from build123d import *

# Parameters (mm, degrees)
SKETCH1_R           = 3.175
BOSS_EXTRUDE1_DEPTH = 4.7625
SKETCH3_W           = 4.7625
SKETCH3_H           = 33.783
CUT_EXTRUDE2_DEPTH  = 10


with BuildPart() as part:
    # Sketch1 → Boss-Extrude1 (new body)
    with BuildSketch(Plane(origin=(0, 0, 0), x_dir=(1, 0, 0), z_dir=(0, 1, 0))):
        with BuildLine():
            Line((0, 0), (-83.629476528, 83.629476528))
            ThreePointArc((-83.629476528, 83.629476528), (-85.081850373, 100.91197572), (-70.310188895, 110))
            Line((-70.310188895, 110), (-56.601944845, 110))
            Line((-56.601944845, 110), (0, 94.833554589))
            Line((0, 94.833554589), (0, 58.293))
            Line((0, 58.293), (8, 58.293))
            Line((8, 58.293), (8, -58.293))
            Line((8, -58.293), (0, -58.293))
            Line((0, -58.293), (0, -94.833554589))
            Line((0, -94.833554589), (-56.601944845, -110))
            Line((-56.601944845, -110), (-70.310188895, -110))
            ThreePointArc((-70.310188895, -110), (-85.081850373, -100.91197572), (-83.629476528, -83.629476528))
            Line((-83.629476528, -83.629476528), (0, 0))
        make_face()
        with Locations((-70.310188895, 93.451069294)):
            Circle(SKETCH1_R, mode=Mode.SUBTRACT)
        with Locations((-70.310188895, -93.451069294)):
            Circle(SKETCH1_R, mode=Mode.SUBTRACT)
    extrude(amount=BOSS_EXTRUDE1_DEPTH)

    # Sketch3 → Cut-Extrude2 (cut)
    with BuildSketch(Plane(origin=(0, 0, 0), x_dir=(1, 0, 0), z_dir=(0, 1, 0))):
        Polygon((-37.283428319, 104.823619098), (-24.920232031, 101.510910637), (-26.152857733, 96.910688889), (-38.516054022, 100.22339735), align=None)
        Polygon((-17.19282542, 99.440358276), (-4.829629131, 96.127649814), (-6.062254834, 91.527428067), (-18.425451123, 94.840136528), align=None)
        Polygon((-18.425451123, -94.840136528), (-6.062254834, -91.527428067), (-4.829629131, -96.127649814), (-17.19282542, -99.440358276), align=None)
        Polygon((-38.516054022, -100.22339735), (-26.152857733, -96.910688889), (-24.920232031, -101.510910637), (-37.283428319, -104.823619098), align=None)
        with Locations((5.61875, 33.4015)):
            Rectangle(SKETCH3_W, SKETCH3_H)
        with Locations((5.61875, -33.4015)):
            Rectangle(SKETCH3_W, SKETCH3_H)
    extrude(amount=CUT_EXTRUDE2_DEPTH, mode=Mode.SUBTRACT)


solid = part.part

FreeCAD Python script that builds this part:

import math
import FreeCAD as App
import Part
import Sketcher

V = App.Vector
Q = App.Units.Quantity


def add_polygon(sketch, points):
    """Adds a closed chain of lines whose ends are joined by coincident constraints."""
    first, n = sketch.GeometryCount, len(points)
    for a, b in zip(points, points[1:] + points[:1]):
        sketch.addGeometry(Part.LineSegment(App.Vector(*a, 0), App.Vector(*b, 0)), False)
    for i in range(n):
        sketch.addConstraint(Sketcher.Constraint("Coincident", first + i, 2, first + (i + 1) % n, 1))

doc = App.newDocument("Part")
body = doc.addObject("PartDesign::Body", "Body")

# Sketch on XZ plane
sketch1 = body.newObject("Sketcher::SketchObject", "Sketch")
sketch1.AttachmentSupport = (doc.getObject("XZ_Plane"), [""])
sketch1.MapMode = "FlatFace"
sketch1.addGeometry([
    Part.LineSegment(V(-83.629477, -83.629477, 0), V(0, 0, 0)),  # 0
    Part.LineSegment(V(0, 0, 0), V(-83.629477, 83.629477, 0)),  # 1
    Part.ArcOfCircle(Part.Circle(V(-70.310189, 93.451069, 0), V(0, 0, 1), 16.548931), math.radians(90), math.radians(216.404924)),  # 2
    Part.LineSegment(V(-70.310189, 110, 0), V(-56.601945, 110, 0)),  # 3
    Part.LineSegment(V(-56.601945, 110, 0), V(0, 94.833555, 0)),  # 4
    Part.LineSegment(V(0, 94.833555, 0), V(0, 58.293, 0)),  # 5
    Part.LineSegment(V(0, 58.293, 0), V(8, 58.293, 0)),  # 6
    Part.LineSegment(V(8, 58.293, 0), V(8, -58.293, 0)),  # 7
    Part.LineSegment(V(8, -58.293, 0), V(0, -58.293, 0)),  # 8
    Part.LineSegment(V(0, -58.293, 0), V(0, -94.833555, 0)),  # 9
    Part.LineSegment(V(0, -94.833555, 0), V(-56.601945, -110, 0)),  # 10
    Part.LineSegment(V(-56.601945, -110, 0), V(-70.310189, -110, 0)),  # 11
    Part.ArcOfCircle(Part.Circle(V(-70.310189, -93.451069, 0), V(0, 0, 1), 16.548931), math.radians(143.595076), math.radians(270)),  # 12
    Part.Circle(V(-70.310189, 93.451069, 0), V(0, 0, 1), 3.175),  # 13
    Part.Circle(V(-70.310189, -93.451069, 0), V(0, 0, 1), 3.175),  # 14
], False)
sketch1.addConstraint([
    Sketcher.Constraint("Coincident", 0, 2, 1, 1),
    Sketcher.Constraint("Coincident", 1, 2, 2, 2),
    Sketcher.Constraint("Tangent", 2, 1, 3, 1),
    Sketcher.Constraint("Coincident", 3, 2, 4, 1),
    Sketcher.Constraint("Coincident", 4, 2, 5, 1),
    Sketcher.Constraint("Coincident", 5, 2, 6, 1),
    Sketcher.Constraint("Coincident", 6, 2, 7, 1),
    Sketcher.Constraint("Coincident", 7, 2, 8, 1),
    Sketcher.Constraint("Coincident", 8, 2, 9, 1),
    Sketcher.Constraint("Coincident", 9, 2, 10, 1),
    Sketcher.Constraint("Coincident", 10, 2, 11, 1),
    Sketcher.Constraint("Tangent", 11, 2, 12, 2),
    Sketcher.Constraint("Coincident", 12, 1, 0, 1),
    Sketcher.Constraint("Horizontal", 3),
    Sketcher.Constraint("Vertical", 5),
    Sketcher.Constraint("Horizontal", 6),
    Sketcher.Constraint("Vertical", 7),
    Sketcher.Constraint("Horizontal", 8),
    Sketcher.Constraint("Vertical", 9),
    Sketcher.Constraint("Horizontal", 11),
    Sketcher.Constraint("Coincident", 0, 2, -1, 1),
    Sketcher.Constraint("Coincident", 13, 3, 2, 3),
    Sketcher.Constraint("Coincident", 14, 3, 12, 3),
    Sketcher.Constraint("Equal", 2, 12),
    Sketcher.Constraint("Equal", 13, 14),
    Sketcher.Constraint("Symmetric", 5, 2, 8, 2, -1, 1),
    Sketcher.Constraint("Symmetric", 2, 3, 12, 3, -1),
    Sketcher.Constraint("Symmetric", 4, 2, 9, 2, -1),
    Sketcher.Constraint("Perpendicular", 0, 1),
    Sketcher.Constraint("Vertical", 3, 2, 10, 2),
    Sketcher.Constraint("Vertical", 1, 2, 12, 1),
    Sketcher.Constraint("Diameter", 13, Q("0.25 in")),
    Sketcher.Constraint("Angle", 4, Q("-15 deg")),
    Sketcher.Constraint("DistanceY", 7, 2, 7, 1, Q("4.59 in")),
    Sketcher.Constraint("Radius", 2, 16.548931),
    Sketcher.Constraint("DistanceX", 6, 1, 6, 2, 8.0),
    Sketcher.Constraint("DistanceY", -1, 1, 2, 1, 110.0),
    Sketcher.Constraint("Distance", 0, 118.26994),
    Sketcher.Constraint("DistanceX", 3, 1, 3, 2, 13.708244),
])
pad1 = body.newObject("PartDesign::Pad", "Pad")
pad1.Profile = sketch1
pad1.Length = Q("0.1875 in")
pad1.Reversed = True

# Sketch on XZ plane
sketch2 = body.newObject("Sketcher::SketchObject", "Sketch001")
sketch2.AttachmentSupport = (doc.getObject("XZ_Plane"), [""])
sketch2.MapMode = "FlatFace"
add_polygon(sketch2, [(-24.920232, -101.510911), (-37.283428, -104.823619), (-38.516054, -100.223397), (-26.152858, -96.910689)])  # lines 0-3
add_polygon(sketch2, [(-4.829629, -96.12765), (-17.192825, -99.440358), (-18.425451, -94.840137), (-6.062255, -91.527428)])  # lines 4-7
add_polygon(sketch2, [(-6.062255, 91.527428), (-18.425451, 94.840137), (-17.192825, 99.440358), (-4.829629, 96.12765)])  # lines 8-11
add_polygon(sketch2, [(-26.152858, 96.910689), (-38.516054, 100.223397), (-37.283428, 104.823619), (-24.920232, 101.510911)])  # lines 12-15
add_polygon(sketch2, [(3.2375, -50.293), (3.2375, -16.51), (8, -16.51), (8, -50.293)])  # lines 16-19
add_polygon(sketch2, [(3.2375, 16.51), (3.2375, 50.293), (8, 50.293), (8, 16.51)])  # lines 20-23
sketch2.addConstraint([
    Sketcher.Constraint("Vertical", 16),
    Sketcher.Constraint("Horizontal", 17),
    Sketcher.Constraint("Vertical", 18),
    Sketcher.Constraint("Horizontal", 19),
    Sketcher.Constraint("Vertical", 20),
    Sketcher.Constraint("Horizontal", 21),
    Sketcher.Constraint("Vertical", 22),
    Sketcher.Constraint("Horizontal", 23),
    Sketcher.Constraint("Symmetric", 5, 2, 8, 2, -1),
    Sketcher.Constraint("Symmetric", 4, 2, 9, 2, -1),
    Sketcher.Constraint("Symmetric", 7, 2, 10, 2, -1),
    Sketcher.Constraint("Symmetric", 6, 2, 11, 2, -1),
    Sketcher.Constraint("Symmetric", 1, 2, 12, 2, -1),
    Sketcher.Constraint("Symmetric", 0, 2, 13, 2, -1),
    Sketcher.Constraint("Symmetric", 3, 2, 14, 2, -1),
    Sketcher.Constraint("Symmetric", 2, 2, 15, 2, -1),
    Sketcher.Constraint("Symmetric", 19, 2, 20, 2, -1),
    Sketcher.Constraint("Symmetric", 17, 2, 22, 2, -1),
    Sketcher.Constraint("Perpendicular", 0, 1),
    Sketcher.Constraint("Perpendicular", 1, 2),
    Sketcher.Constraint("Perpendicular", 2, 3),
    Sketcher.Constraint("Perpendicular", 3, 4),
    Sketcher.Constraint("Perpendicular", 4, 5),
    Sketcher.Constraint("Perpendicular", 5, 6),
    Sketcher.Constraint("Perpendicular", 6, 7),
    Sketcher.Constraint("Equal", 2, 4),
    Sketcher.Constraint("Equal", 3, 5),
    Sketcher.Constraint("Angle", 0, Q("-165 deg")),
    Sketcher.Constraint("DistanceY", 17, 2, 22, 2, Q("1.3 in")),
    Sketcher.Constraint("DistanceX", 17, 1, 17, 2, Q("0.1875 in")),
    Sketcher.Constraint("Distance", 1, Q("0.1875 in")),
    Sketcher.Constraint("DistanceY", 16, 1, 16, 2, 33.783),
    Sketcher.Constraint("DistanceX", 3, 2, 5, 2, Q("0.2557 in")),
    Sketcher.Constraint("DistanceX", -1, 1, 16, 2, 3.2375),
    Sketcher.Constraint("DistanceX", 1, 2, 6, 2, 32.453799),
    Sketcher.Constraint("DistanceY", 7, 2, 10, 2, 192.2553),
    Sketcher.Constraint("DistanceX", 0, 2, -1, 1, 37.283428),
    Sketcher.Constraint("DistanceY", 0, 2, -1, 1, 104.823619),
])
pocket1 = body.newObject("PartDesign::Pocket", "Pocket")
pocket1.Profile = sketch2
pocket1.Length = 10

doc.recompute()
